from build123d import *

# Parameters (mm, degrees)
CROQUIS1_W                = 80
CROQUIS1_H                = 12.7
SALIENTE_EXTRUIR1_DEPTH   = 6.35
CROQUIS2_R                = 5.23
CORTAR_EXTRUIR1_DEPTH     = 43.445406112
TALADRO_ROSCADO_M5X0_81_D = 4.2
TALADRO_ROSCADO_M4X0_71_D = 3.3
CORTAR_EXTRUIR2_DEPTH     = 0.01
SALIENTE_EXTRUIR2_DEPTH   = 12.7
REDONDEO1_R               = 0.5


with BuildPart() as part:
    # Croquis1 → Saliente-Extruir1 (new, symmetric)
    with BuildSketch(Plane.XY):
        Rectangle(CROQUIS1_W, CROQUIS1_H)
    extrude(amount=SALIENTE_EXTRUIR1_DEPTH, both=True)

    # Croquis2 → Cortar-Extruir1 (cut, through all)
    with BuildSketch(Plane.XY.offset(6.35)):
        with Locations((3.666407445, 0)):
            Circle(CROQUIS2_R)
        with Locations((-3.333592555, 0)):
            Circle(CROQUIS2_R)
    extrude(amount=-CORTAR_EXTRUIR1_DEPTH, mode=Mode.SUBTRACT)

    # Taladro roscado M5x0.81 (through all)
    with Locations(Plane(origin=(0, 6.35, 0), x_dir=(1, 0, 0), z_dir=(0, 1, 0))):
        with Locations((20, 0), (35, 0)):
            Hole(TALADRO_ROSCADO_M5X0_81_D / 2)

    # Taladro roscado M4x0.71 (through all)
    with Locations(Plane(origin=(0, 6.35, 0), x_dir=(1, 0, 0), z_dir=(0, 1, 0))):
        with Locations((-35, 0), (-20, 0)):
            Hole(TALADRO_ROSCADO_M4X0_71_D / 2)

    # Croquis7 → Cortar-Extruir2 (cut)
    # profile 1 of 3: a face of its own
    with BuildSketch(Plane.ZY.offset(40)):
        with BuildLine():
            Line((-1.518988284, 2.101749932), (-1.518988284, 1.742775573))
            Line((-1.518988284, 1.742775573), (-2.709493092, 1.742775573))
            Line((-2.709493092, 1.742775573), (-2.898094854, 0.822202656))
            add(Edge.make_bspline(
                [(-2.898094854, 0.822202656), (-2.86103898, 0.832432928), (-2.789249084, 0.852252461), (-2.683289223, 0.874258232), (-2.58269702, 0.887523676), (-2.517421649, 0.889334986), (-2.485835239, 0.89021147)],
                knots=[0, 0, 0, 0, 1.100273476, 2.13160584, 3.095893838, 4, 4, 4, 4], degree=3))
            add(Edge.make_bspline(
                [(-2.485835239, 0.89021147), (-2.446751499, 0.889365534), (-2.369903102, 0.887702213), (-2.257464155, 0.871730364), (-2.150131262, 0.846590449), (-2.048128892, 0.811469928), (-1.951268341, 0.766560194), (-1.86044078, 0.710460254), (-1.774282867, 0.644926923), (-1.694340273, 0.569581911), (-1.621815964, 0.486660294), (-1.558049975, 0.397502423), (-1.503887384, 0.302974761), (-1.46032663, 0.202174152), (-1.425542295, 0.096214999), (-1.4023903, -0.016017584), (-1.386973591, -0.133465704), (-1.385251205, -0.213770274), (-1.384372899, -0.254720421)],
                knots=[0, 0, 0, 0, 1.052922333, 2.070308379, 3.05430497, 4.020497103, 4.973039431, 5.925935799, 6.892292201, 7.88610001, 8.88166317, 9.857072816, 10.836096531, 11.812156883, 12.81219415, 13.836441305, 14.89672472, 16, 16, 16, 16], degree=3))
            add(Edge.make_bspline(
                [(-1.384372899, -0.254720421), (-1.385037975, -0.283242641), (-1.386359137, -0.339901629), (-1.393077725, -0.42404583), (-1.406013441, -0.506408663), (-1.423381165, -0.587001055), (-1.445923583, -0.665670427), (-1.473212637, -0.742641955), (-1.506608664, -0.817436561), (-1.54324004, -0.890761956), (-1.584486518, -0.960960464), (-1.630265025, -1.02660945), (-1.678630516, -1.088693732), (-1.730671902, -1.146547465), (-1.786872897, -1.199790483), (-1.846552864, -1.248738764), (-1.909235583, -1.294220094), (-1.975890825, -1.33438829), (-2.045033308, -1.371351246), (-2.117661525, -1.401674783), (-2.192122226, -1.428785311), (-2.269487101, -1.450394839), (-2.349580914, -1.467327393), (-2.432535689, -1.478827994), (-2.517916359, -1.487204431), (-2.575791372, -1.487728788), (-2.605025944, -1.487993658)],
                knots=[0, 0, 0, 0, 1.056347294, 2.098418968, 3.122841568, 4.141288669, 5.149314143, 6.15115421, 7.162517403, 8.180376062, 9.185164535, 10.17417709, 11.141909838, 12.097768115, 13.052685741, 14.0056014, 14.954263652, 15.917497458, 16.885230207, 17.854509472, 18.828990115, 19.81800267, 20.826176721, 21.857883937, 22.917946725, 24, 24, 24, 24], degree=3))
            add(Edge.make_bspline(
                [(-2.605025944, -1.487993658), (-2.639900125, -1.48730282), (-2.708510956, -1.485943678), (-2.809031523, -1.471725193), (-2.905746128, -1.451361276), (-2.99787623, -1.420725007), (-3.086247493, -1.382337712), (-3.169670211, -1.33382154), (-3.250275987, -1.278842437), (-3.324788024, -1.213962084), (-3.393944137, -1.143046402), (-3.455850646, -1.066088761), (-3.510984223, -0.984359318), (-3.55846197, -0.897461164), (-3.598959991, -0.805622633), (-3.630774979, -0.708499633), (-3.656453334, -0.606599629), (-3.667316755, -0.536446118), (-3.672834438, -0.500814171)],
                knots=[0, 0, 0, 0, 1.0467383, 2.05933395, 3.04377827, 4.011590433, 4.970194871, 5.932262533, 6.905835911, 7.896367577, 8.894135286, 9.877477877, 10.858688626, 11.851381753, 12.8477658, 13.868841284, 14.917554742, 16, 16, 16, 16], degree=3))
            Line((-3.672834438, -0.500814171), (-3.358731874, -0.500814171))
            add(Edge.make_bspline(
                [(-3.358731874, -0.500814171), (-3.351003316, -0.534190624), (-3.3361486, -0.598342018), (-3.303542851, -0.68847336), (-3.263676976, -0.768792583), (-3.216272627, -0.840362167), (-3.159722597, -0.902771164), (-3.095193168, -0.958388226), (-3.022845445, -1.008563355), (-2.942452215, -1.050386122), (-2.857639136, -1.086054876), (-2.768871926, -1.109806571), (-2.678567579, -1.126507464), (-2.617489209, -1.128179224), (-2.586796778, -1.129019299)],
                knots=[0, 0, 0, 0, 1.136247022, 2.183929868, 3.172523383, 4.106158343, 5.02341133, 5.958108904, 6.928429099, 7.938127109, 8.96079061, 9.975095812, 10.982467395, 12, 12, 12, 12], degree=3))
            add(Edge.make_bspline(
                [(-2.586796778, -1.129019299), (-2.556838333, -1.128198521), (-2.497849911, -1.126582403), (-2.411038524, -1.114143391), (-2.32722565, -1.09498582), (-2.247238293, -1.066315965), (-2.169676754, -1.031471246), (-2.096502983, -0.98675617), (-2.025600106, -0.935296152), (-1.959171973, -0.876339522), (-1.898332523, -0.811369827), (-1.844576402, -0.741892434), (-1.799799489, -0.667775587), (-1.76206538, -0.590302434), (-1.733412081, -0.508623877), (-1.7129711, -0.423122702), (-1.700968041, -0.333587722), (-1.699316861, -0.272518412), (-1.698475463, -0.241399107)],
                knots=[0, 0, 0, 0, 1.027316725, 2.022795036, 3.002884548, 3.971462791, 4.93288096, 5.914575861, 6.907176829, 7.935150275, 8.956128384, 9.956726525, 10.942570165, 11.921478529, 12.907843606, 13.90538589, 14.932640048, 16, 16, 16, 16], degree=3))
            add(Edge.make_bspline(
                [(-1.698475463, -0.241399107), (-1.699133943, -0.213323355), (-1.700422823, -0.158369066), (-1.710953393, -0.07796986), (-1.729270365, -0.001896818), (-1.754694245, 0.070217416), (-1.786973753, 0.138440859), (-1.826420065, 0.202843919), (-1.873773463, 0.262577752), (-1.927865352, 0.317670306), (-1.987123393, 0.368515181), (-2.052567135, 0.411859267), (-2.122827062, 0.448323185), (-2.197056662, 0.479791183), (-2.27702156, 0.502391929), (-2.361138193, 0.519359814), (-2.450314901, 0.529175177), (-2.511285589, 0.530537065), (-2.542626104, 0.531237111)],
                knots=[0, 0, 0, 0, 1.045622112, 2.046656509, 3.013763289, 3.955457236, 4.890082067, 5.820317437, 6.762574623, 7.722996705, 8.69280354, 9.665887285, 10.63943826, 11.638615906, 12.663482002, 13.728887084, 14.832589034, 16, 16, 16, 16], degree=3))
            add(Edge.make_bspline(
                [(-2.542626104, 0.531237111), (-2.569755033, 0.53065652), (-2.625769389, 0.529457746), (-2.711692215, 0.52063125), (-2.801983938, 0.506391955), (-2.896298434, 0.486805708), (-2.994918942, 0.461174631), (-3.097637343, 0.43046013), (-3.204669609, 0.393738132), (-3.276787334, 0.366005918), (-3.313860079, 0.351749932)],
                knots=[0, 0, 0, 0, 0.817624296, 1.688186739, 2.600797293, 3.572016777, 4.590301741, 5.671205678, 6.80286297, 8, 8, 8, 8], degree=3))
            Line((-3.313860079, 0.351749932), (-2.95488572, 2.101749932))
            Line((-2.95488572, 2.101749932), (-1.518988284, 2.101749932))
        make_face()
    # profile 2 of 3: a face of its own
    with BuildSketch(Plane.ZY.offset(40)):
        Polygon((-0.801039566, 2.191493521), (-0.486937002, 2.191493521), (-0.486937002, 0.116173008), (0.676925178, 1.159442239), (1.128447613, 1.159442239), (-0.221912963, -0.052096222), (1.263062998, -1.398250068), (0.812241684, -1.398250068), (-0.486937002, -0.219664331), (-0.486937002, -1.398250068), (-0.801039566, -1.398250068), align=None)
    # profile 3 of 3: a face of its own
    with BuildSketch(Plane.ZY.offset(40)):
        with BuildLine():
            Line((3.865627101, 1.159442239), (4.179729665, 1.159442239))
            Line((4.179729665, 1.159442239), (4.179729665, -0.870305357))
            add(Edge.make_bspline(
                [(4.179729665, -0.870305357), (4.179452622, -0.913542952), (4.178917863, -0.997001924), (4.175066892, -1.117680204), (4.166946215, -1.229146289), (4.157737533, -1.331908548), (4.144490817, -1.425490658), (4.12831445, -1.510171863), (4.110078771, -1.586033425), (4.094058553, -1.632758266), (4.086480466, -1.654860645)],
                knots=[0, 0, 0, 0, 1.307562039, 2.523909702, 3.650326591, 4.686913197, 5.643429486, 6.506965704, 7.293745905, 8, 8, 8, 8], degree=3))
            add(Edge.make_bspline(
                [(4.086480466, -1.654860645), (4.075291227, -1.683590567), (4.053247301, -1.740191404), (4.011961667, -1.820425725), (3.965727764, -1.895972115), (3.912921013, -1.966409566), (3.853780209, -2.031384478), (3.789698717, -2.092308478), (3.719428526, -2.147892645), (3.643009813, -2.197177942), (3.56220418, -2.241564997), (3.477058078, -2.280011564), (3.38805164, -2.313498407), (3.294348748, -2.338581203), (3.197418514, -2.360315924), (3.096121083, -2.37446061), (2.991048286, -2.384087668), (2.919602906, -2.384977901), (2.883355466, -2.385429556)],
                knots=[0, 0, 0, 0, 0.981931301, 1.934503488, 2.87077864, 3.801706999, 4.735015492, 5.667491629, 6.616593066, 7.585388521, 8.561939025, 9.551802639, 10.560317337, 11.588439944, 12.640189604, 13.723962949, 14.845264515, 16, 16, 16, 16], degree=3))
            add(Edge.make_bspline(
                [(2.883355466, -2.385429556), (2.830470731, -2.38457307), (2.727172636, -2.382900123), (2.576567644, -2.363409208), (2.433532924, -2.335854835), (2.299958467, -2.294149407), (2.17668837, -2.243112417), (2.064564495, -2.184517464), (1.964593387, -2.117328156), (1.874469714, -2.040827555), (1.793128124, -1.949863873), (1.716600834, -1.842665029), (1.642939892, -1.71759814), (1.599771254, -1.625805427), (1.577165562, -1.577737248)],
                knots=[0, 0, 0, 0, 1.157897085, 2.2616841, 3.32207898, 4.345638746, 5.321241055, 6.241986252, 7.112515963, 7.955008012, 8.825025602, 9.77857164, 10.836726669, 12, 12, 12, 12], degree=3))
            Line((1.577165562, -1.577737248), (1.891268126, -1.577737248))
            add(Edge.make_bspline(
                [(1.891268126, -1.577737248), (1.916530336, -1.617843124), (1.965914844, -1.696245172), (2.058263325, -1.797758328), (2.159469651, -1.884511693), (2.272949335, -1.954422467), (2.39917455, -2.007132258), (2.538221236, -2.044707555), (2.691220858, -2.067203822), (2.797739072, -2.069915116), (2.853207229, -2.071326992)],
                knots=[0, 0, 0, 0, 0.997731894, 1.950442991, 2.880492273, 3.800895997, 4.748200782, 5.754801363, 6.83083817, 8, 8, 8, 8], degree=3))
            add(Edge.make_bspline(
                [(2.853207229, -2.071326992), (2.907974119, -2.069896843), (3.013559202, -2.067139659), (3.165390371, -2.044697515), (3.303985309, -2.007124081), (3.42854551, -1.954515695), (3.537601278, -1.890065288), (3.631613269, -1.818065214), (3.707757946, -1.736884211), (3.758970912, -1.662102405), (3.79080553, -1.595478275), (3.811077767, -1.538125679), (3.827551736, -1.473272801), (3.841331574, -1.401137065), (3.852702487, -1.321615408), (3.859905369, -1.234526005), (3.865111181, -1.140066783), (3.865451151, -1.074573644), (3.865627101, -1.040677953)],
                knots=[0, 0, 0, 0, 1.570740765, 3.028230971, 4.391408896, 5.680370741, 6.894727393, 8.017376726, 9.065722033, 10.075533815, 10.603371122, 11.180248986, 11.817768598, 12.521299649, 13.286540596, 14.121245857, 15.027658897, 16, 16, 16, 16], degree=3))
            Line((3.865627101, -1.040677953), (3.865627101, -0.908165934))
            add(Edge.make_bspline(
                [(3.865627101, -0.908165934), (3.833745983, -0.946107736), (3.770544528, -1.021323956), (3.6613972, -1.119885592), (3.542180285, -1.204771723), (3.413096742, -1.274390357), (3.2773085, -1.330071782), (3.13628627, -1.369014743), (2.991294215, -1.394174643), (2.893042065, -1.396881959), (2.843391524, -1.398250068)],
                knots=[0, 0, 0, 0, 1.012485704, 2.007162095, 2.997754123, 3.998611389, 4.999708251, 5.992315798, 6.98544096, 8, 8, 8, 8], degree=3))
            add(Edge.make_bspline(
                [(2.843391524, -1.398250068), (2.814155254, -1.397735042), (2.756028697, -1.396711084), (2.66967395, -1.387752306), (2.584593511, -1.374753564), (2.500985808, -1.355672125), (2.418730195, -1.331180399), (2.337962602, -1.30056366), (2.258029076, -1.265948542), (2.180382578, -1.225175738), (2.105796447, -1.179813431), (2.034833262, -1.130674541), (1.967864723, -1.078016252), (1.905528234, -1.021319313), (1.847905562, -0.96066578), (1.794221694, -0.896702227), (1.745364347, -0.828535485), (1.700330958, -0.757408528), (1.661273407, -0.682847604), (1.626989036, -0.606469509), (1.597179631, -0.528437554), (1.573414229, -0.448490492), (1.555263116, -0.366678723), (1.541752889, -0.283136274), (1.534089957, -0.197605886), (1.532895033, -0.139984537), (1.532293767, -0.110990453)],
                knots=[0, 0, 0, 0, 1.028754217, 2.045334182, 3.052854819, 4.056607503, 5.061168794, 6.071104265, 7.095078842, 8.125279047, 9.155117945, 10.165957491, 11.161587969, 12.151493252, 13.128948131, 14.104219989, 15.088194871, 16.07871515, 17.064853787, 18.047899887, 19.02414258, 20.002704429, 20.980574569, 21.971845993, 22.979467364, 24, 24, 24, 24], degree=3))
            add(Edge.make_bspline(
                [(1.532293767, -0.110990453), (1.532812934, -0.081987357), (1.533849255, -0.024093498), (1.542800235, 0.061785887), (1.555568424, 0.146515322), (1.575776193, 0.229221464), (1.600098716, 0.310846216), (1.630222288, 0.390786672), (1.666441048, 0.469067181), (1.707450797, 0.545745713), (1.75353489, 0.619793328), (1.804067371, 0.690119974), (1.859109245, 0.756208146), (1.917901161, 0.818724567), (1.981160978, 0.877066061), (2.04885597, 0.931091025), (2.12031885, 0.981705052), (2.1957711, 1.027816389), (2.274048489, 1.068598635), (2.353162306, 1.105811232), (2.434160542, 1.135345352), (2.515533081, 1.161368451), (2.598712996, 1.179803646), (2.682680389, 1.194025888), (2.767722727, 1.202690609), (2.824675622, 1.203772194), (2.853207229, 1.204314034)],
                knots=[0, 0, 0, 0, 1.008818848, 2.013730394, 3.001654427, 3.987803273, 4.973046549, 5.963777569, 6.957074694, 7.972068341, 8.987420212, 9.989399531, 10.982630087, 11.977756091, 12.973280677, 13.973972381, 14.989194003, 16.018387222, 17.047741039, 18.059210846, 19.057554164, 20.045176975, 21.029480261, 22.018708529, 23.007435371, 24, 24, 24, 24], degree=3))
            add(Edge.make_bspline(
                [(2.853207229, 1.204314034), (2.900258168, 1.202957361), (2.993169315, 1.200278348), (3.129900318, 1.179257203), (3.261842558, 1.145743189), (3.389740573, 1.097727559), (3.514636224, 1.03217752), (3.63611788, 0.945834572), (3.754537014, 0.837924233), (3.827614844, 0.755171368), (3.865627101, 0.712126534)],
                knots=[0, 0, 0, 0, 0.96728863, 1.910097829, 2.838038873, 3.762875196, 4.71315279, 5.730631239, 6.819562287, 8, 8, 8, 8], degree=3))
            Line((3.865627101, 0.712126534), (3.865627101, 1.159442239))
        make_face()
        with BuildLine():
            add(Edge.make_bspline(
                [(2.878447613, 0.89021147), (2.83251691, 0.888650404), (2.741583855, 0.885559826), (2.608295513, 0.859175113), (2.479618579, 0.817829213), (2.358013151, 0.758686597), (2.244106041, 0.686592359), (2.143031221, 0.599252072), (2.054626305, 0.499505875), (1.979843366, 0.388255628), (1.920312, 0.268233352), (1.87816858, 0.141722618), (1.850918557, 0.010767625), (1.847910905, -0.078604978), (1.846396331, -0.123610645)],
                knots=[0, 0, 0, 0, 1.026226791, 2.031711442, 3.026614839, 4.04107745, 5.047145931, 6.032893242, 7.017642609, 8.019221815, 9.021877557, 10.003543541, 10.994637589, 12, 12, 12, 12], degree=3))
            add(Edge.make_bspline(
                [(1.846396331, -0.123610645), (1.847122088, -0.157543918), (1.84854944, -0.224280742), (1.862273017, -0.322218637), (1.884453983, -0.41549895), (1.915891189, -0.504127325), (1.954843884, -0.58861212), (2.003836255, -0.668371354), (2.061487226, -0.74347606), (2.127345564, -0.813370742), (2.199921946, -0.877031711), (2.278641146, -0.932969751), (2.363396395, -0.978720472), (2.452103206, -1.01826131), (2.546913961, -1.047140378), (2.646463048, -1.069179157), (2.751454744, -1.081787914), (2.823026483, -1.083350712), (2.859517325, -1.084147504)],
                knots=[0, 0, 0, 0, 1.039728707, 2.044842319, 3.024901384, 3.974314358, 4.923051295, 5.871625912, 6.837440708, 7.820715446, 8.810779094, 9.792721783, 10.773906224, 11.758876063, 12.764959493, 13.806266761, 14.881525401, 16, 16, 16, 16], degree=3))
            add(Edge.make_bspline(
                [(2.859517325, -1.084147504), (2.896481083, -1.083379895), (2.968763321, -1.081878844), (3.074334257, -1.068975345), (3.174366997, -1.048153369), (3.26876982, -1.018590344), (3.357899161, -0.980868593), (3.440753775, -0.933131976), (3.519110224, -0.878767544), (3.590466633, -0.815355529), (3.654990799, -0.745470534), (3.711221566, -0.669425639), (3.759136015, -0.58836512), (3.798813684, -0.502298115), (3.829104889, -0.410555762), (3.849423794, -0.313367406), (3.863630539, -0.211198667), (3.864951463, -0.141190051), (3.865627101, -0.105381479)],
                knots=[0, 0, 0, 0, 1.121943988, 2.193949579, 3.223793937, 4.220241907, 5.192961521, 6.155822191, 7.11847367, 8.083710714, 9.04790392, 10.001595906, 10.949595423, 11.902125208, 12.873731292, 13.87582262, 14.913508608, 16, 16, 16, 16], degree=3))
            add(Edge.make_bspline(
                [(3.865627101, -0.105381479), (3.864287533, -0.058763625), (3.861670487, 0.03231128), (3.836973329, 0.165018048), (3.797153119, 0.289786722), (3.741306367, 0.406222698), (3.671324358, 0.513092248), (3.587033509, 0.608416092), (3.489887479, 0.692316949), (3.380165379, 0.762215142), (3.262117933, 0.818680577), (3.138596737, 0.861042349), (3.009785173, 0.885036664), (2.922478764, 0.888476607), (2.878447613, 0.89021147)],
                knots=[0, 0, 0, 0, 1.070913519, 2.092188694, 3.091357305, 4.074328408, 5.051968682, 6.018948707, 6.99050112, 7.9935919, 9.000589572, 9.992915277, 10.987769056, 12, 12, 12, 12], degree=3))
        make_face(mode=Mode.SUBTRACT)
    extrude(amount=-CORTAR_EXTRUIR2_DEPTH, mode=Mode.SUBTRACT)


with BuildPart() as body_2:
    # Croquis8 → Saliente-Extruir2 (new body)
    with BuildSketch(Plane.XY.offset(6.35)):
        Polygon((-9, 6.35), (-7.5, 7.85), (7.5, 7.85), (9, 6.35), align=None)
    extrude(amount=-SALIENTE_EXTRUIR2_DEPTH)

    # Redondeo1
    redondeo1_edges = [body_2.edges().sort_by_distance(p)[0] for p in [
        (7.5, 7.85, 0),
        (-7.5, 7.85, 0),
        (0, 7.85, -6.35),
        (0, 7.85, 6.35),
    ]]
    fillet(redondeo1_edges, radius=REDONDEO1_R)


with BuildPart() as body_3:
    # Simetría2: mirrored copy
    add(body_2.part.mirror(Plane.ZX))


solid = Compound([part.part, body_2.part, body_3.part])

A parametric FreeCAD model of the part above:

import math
import FreeCAD as App
import Part
import Sketcher

V = App.Vector


def edges_at(feature, points):
    """Names of the edges that pass closest to the given points."""
    edges = feature.Shape.Edges
    near = lambda p: min(range(len(edges)), key=lambda i: edges[i].distToShape(Part.Vertex(*p))[0])
    return sorted({f"Edge{near(p) + 1}" for p in points})

doc = App.newDocument("Part")
body = doc.addObject("PartDesign::Body", "Body")

# Sketch on XY plane
sketch1 = doc.addObject("Sketcher::SketchObject", "Sketch")
body.addObject(sketch1)
sketch1.AttachmentSupport = (doc.XY_Plane, [""])
sketch1.MapMode = "FlatFace"
sketch1.addGeometry([
    Part.LineSegment(V(-40, 6, 0), V(-40, -6, 0)),
    Part.LineSegment(V(-40, -6, 0), V(40, -6, 0)),
    Part.LineSegment(V(40, -6, 0), V(40, 6, 0)),
    Part.LineSegment(V(40, 6, 0), V(-40, 6, 0)),
], False)
sketch1.addConstraint([
    Sketcher.Constraint("Coincident", 0, 2, 1, 1),
    Sketcher.Constraint("Coincident", 1, 2, 2, 1),
    Sketcher.Constraint("Coincident", 2, 2, 3, 1),
    Sketcher.Constraint("Coincident", 3, 2, 0, 1),
    Sketcher.Constraint("Vertical", 0),
    Sketcher.Constraint("Horizontal", 1),
    Sketcher.Constraint("Vertical", 2),
    Sketcher.Constraint("Horizontal", 3),
    Sketcher.Constraint("Symmetric", 0, 2, 2, 2, -1, 1),
    Sketcher.Constraint("DistanceX", 1, 1, 1, 2, 80.0),
    Sketcher.Constraint("DistanceY", 0, 2, 0, 1, 12.7),
])
pad1 = doc.addObject("PartDesign::Pad", "Pad")
body.addObject(pad1)
pad1.Profile = sketch1
pad1.Length = 12.7
pad1.Midplane = True

# Sketch on XY plane
sketch2 = doc.addObject("Sketcher::SketchObject", "Sketch001")
body.addObject(sketch2)
sketch2.AttachmentSupport = (doc.XY_Plane, [""])
sketch2.MapMode = "FlatFace"
sketch2.AttachmentOffset = App.Placement(V(0, 0, 6.35), App.Rotation())
sketch2.addGeometry([
    Part.ArcOfCircle(Part.Circle(V(-3, 0, 0), V(0, 0, 1), 5), math.radians(48), math.radians(312)),
    Part.ArcOfCircle(Part.Circle(V(4, 0, 0), V(0, 0, 1), 5), math.radians(-132), math.radians(132)),
], False)
sketch2.addConstraint([
    Sketcher.Constraint("Coincident", 0, 1, 1, 2),
    Sketcher.Constraint("Coincident", 1, 1, 0, 2),
    Sketcher.Constraint("Equal", 0, 1),
    Sketcher.Constraint("Symmetric", 0, 1, 1, 1, -1),
    Sketcher.Constraint("Radius", 0, 5.23),
    Sketcher.Constraint("DistanceX", 0, 3, 1, 3, 7.0),
    Sketcher.Constraint("DistanceX", 0, 3, -1, 1, 3.333593),
])
pocket1 = doc.addObject("PartDesign::Pocket", "Pocket")
body.addObject(pocket1)
pocket1.Profile = sketch2
pocket1.Type = "ThroughAll"

# Sketch on XZ plane
sketch3 = doc.addObject("Sketcher::SketchObject", "Sketch002")
body.addObject(sketch3)
sketch3.AttachmentSupport = (doc.XZ_Plane, [""])
sketch3.MapMode = "FlatFace"
sketch3.AttachmentOffset = App.Placement(V(0, 0, -6.35), App.Rotation())
sketch3.addGeometry([
    Part.Circle(V(20, 0, 0), V(0, 0, 1), 2.1),
    Part.Circle(V(35, 0, 0), V(0, 0, 1), 2.1),
], False)
sketch3.addConstraint([
    Sketcher.Constraint("Equal", 0, 1),
    Sketcher.Constraint("PointOnObject", 0, 3, -1),
    Sketcher.Constraint("PointOnObject", 1, 3, -1),
    Sketcher.Constraint("Diameter", 0, 4.2),
    Sketcher.Constraint("DistanceX", -1, 1, 0, 3, 20.0),
    Sketcher.Constraint("DistanceX", -1, 1, 1, 3, 35.0),
])
doc.recompute()
hole = doc.addObject("PartDesign::Hole", "Hole")
body.addObject(hole)
hole.Profile = sketch3
hole.ThreadType = "None"
hole.Diameter = 4.2
hole.DepthType = "ThroughAll"
hole.Reversed = True

# Sketch on XZ plane
sketch4 = doc.addObject("Sketcher::SketchObject", "Sketch003")
body.addObject(sketch4)
sketch4.AttachmentSupport = (doc.XZ_Plane, [""])
sketch4.MapMode = "FlatFace"
sketch4.AttachmentOffset = App.Placement(V(0, 0, -6.35), App.Rotation())
sketch4.addGeometry([
    Part.Circle(V(-35, 0, 0), V(0, 0, 1), 1.6),
    Part.Circle(V(-20, 0, 0), V(0, 0, 1), 1.6),
], False)
sketch4.addConstraint([
    Sketcher.Constraint("Equal", 0, 1),
    Sketcher.Constraint("PointOnObject", 0, 3, -1),
    Sketcher.Constraint("PointOnObject", 1, 3, -1),
    Sketcher.Constraint("Diameter", 0, 3.3),
    Sketcher.Constraint("DistanceX", 0, 3, -1, 1, 35.0),
    Sketcher.Constraint("DistanceX", 1, 3, -1, 1, 20.0),
])
doc.recompute()
hole2 = doc.addObject("PartDesign::Hole", "Hole001")
body.addObject(hole2)
hole2.Profile = sketch4
hole2.ThreadType = "None"
hole2.Diameter = 3.3
hole2.DepthType = "ThroughAll"
hole2.Reversed = True

# Sketch on YZ plane
sketch5 = doc.addObject("Sketcher::SketchObject", "Sketch004")
body.addObject(sketch5)
sketch5.AttachmentSupport = (doc.YZ_Plane, [""])
sketch5.MapMode = "FlatFace"
sketch5.AttachmentOffset = App.Placement(V(0, 0, -40), App.Rotation())
sketch5.addGeometry([
    Part.LineSegment(V(1.742776, -1.518988, 0), V(2.10175, -1.518988, 0)),  # 0
    Part.LineSegment(V(2.10175, -1.518988, 0), V(2.10175, -2.954886, 0)),  # 1
    Part.LineSegment(V(2.10175, -2.954886, 0), V(0.35175, -3.31386, 0)),  # 2
    Part.BSplineCurve([V(0.531237, -2.542626, 0), V(0.530657, -2.569755, 0), V(0.529458, -2.625769, 0), V(0.520631, -2.711692, 0), V(0.506392, -2.801984, 0), V(0.486806, -2.896298, 0), V(0.461175, -2.994919, 0), V(0.43046, -3.097637, 0), V(0.393738, -3.20467, 0), V(0.366006, -3.276787, 0), V(0.35175, -3.31386, 0)], [4, 1, 1, 1, 1, 1, 1, 1, 4], [0, 0.817624296, 1.688186739, 2.600797293, 3.572016777, 4.590301741, 5.671205678, 6.80286297, 8], False, 3, [1, 1, 1, 1, 1, 1, 1, 1, 1, 1, 1], False),  # 3
    Part.BSplineCurve([V(-0.241399, -1.698475, 0), V(-0.213323, -1.699134, 0), V(-0.158369, -1.700423, 0), V(-0.07797, -1.710953, 0), V(-0.001897, -1.72927, 0), V(0.070217, -1.754694, 0), V(0.138441, -1.786974, 0), V(0.202844, -1.82642, 0), V(0.262578, -1.873773, 0), V(0.31767, -1.927865, 0), V(0.368515, -1.987123, 0), V(0.411859, -2.052567, 0), V(0.448323, -2.122827, 0), V(0.479791, -2.197057, 0), V(0.502392, -2.277022, 0), V(0.51936, -2.361138, 0), V(0.529175, -2.450315, 0), V(0.530537, -2.511286, 0), V(0.531237, -2.542626, 0)], [4, 1, 1, 1, 1, 1, 1, 1, 1, 1, 1, 1, 1, 1, 1, 1, 4], [0, 1.045622112, 2.046656509, 3.013763289, 3.955457236, 4.890082067, 5.820317437, 6.762574623, 7.722996705, 8.69280354, 9.665887285, 10.63943826, 11.638615906, 12.663482002, 13.728887084, 14.832589034, 16], False, 3, [1, 1, 1, 1, 1, 1, 1, 1, 1, 1, 1, 1, 1, 1, 1, 1, 1, 1, 1], False),  # 4
    Part.BSplineCurve([V(-1.129019, -2.586797, 0), V(-1.128199, -2.556838, 0), V(-1.126582, -2.49785, 0), V(-1.114143, -2.411039, 0), V(-1.094986, -2.327226, 0), V(-1.066316, -2.247238, 0), V(-1.031471, -2.169677, 0), V(-0.986756, -2.096503, 0), V(-0.935296, -2.0256, 0), V(-0.87634, -1.959172, 0), V(-0.81137, -1.898333, 0), V(-0.741892, -1.844576, 0), V(-0.667776, -1.799799, 0), V(-0.590302, -1.762065, 0), V(-0.508624, -1.733412, 0), V(-0.423123, -1.712971, 0), V(-0.333588, -1.700968, 0), V(-0.272518, -1.699317, 0), V(-0.241399, -1.698475, 0)], [4, 1, 1, 1, 1, 1, 1, 1, 1, 1, 1, 1, 1, 1, 1, 1, 4], [0, 1.027316725, 2.022795036, 3.002884548, 3.971462791, 4.93288096, 5.914575861, 6.907176829, 7.935150275, 8.956128384, 9.956726525, 10.942570165, 11.921478529, 12.907843606, 13.90538589, 14.932640048, 16], False, 3, [1, 1, 1, 1, 1, 1, 1, 1, 1, 1, 1, 1, 1, 1, 1, 1, 1, 1, 1], False),  # 5
    Part.BSplineCurve([V(-0.500814, -3.358732, 0), V(-0.534191, -3.351003, 0), V(-0.598342, -3.336149, 0), V(-0.688473, -3.303543, 0), V(-0.768793, -3.263677, 0), V(-0.840362, -3.216273, 0), V(-0.902771, -3.159723, 0), V(-0.958388, -3.095193, 0), V(-1.008563, -3.022845, 0), V(-1.050386, -2.942452, 0), V(-1.086055, -2.857639, 0), V(-1.109807, -2.768872, 0), V(-1.126507, -2.678568, 0), V(-1.128179, -2.617489, 0), V(-1.129019, -2.586797, 0)], [4, 1, 1, 1, 1, 1, 1, 1, 1, 1, 1, 1, 4], [0, 1.136247022, 2.183929868, 3.172523383, 4.106158343, 5.02341133, 5.958108904, 6.928429099, 7.938127109, 8.96079061, 9.975095812, 10.982467395, 12], False, 3, [1, 1, 1, 1, 1, 1, 1, 1, 1, 1, 1, 1, 1, 1, 1], False),  # 6
    Part.LineSegment(V(-0.500814, -3.358732, 0), V(-0.500814, -3.672834, 0)),  # 7
    Part.BSplineCurve([V(-1.487994, -2.605026, 0), V(-1.487303, -2.6399, 0), V(-1.485944, -2.708511, 0), V(-1.471725, -2.809032, 0), V(-1.451361, -2.905746, 0), V(-1.420725, -2.997876, 0), V(-1.382338, -3.086247, 0), V(-1.333822, -3.16967, 0), V(-1.278842, -3.250276, 0), V(-1.213962, -3.324788, 0), V(-1.143046, -3.393944, 0), V(-1.066089, -3.455851, 0), V(-0.984359, -3.510984, 0), V(-0.897461, -3.558462, 0), V(-0.805623, -3.59896, 0), V(-0.7085, -3.630775, 0), V(-0.6066, -3.656453, 0), V(-0.536446, -3.667317, 0), V(-0.500814, -3.672834, 0)], [4, 1, 1, 1, 1, 1, 1, 1, 1, 1, 1, 1, 1, 1, 1, 1, 4], [0, 1.0467383, 2.05933395, 3.04377827, 4.011590433, 4.970194871, 5.932262533, 6.905835911, 7.896367577, 8.894135286, 9.877477877, 10.858688626, 11.851381753, 12.8477658, 13.868841284, 14.917554742, 16], False, 3, [1, 1, 1, 1, 1, 1, 1, 1, 1, 1, 1, 1, 1, 1, 1, 1, 1, 1, 1], False),  # 8
    Part.BSplineCurve([V(-0.25472, -1.384373, 0), V(-0.283243, -1.385038, 0), V(-0.339902, -1.386359, 0), V(-0.424046, -1.393078, 0), V(-0.506409, -1.406013, 0), V(-0.587001, -1.423381, 0), V(-0.66567, -1.445924, 0), V(-0.742642, -1.473213, 0), V(-0.817437, -1.506609, 0), V(-0.890762, -1.54324, 0), V(-0.96096, -1.584487, 0), V(-1.026609, -1.630265, 0), V(-1.088694, -1.678631, 0), V(-1.146547, -1.730672, 0), V(-1.19979, -1.786873, 0), V(-1.248739, -1.846553, 0), V(-1.29422, -1.909236, 0), V(-1.334388, -1.975891, 0), V(-1.371351, -2.045033, 0), V(-1.401675, -2.117662, 0), V(-1.428785, -2.192122, 0), V(-1.450395, -2.269487, 0), V(-1.467327, -2.349581, 0), V(-1.478828, -2.432536, 0), V(-1.487204, -2.517916, 0), V(-1.487729, -2.575791, 0), V(-1.487994, -2.605026, 0)], [4, 1, 1, 1, 1, 1, 1, 1, 1, 1, 1, 1, 1, 1, 1, 1, 1, 1, 1, 1, 1, 1, 1, 1, 4], [0, 1.056347294, 2.098418968, 3.122841568, 4.141288669, 5.149314143, 6.15115421, 7.162517403, 8.180376062, 9.185164535, 10.17417709, 11.141909838, 12.097768115, 13.052685741, 14.0056014, 14.954263652, 15.917497458, 16.885230207, 17.854509472, 18.828990115, 19.81800267, 20.826176721, 21.857883937, 22.917946725, 24], False, 3, [1, 1, 1, 1, 1, 1, 1, 1, 1, 1, 1, 1, 1, 1, 1, 1, 1, 1, 1, 1, 1, 1, 1, 1, 1, 1, 1], False),  # 9
    Part.BSplineCurve([V(0.890211, -2.485835, 0), V(0.889366, -2.446751, 0), V(0.887702, -2.369903, 0), V(0.87173, -2.257464, 0), V(0.84659, -2.150131, 0), V(0.81147, -2.048129, 0), V(0.76656, -1.951268, 0), V(0.71046, -1.860441, 0), V(0.644927, -1.774283, 0), V(0.569582, -1.69434, 0), V(0.48666, -1.621816, 0), V(0.397502, -1.55805, 0), V(0.302975, -1.503887, 0), V(0.202174, -1.460327, 0), V(0.096215, -1.425542, 0), V(-0.016018, -1.40239, 0), V(-0.133466, -1.386974, 0), V(-0.21377, -1.385251, 0), V(-0.25472, -1.384373, 0)], [4, 1, 1, 1, 1, 1, 1, 1, 1, 1, 1, 1, 1, 1, 1, 1, 4], [0, 1.052922333, 2.070308379, 3.05430497, 4.020497103, 4.973039431, 5.925935799, 6.892292201, 7.88610001, 8.88166317, 9.857072816, 10.836096531, 11.812156883, 12.81219415, 13.836441305, 14.89672472, 16], False, 3, [1, 1, 1, 1, 1, 1, 1, 1, 1, 1, 1, 1, 1, 1, 1, 1, 1, 1, 1], False),  # 10
    Part.BSplineCurve([V(0.822203, -2.898095, 0), V(0.832433, -2.861039, 0), V(0.852252, -2.789249, 0), V(0.874258, -2.683289, 0), V(0.887524, -2.582697, 0), V(0.889335, -2.517422, 0), V(0.890211, -2.485835, 0)], [4, 1, 1, 1, 4], [0, 1.100273476, 2.13160584, 3.095893838, 4], False, 3, [1, 1, 1, 1, 1, 1, 1], False),  # 11
    Part.LineSegment(V(0.822203, -2.898095, 0), V(1.742776, -2.709493, 0)),  # 12
    Part.LineSegment(V(1.742776, -2.709493, 0), V(1.742776, -1.518988, 0)),  # 13
    Part.LineSegment(V(2.191494, -0.486937, 0), V(2.191494, -0.80104, 0)),  # 14
    Part.LineSegment(V(2.191494, -0.80104, 0), V(-1.39825, -0.80104, 0)),  # 15
    Part.LineSegment(V(-1.39825, -0.80104, 0), V(-1.39825, -0.486937, 0)),  # 16
    Part.LineSegment(V(-1.39825, -0.486937, 0), V(-0.219664, -0.486937, 0)),  # 17
    Part.LineSegment(V(-0.219664, -0.486937, 0), V(-1.39825, 0.812242, 0)),  # 18
    Part.LineSegment(V(-1.39825, 0.812242, 0), V(-1.39825, 1.263063, 0)),  # 19
    Part.LineSegment(V(-1.39825, 1.263063, 0), V(-0.052096, -0.221913, 0)),  # 20
    Part.LineSegment(V(-0.052096, -0.221913, 0), V(1.159442, 1.128448, 0)),  # 21
    Part.LineSegment(V(1.159442, 1.128448, 0), V(1.159442, 0.676925, 0)),  # 22
    Part.LineSegment(V(1.159442, 0.676925, 0), V(0.116173, -0.486937, 0)),  # 23
    Part.LineSegment(V(0.116173, -0.486937, 0), V(2.191494, -0.486937, 0)),  # 24
    Part.LineSegment(V(1.159442, 4.17973, 0), V(1.159442, 3.865627, 0)),  # 25
    Part.LineSegment(V(1.159442, 3.865627, 0), V(0.712127, 3.865627, 0)),  # 26
    Part.BSplineCurve([V(1.204314, 2.853207, 0), V(1.202957, 2.900258, 0), V(1.200278, 2.993169, 0), V(1.179257, 3.1299, 0), V(1.145743, 3.261843, 0), V(1.097728, 3.389741, 0), V(1.032178, 3.514636, 0), V(0.945835, 3.636118, 0), V(0.837924, 3.754537, 0), V(0.755171, 3.827615, 0), V(0.712127, 3.865627, 0)], [4, 1, 1, 1, 1, 1, 1, 1, 4], [0, 0.96728863, 1.910097829, 2.838038873, 3.762875196, 4.71315279, 5.730631239, 6.819562287, 8], False, 3, [1, 1, 1, 1, 1, 1, 1, 1, 1, 1, 1], False),  # 27
    Part.BSplineCurve([V(-0.11099, 1.532294, 0), V(-0.081987, 1.532813, 0), V(-0.024093, 1.533849, 0), V(0.061786, 1.5428, 0), V(0.146515, 1.555568, 0), V(0.229221, 1.575776, 0), V(0.310846, 1.600099, 0), V(0.390787, 1.630222, 0), V(0.469067, 1.666441, 0), V(0.545746, 1.707451, 0), V(0.619793, 1.753535, 0), V(0.69012, 1.804067, 0), V(0.756208, 1.859109, 0), V(0.818725, 1.917901, 0), V(0.877066, 1.981161, 0), V(0.931091, 2.048856, 0), V(0.981705, 2.120319, 0), V(1.027816, 2.195771, 0), V(1.068599, 2.274048, 0), V(1.105811, 2.353162, 0), V(1.135345, 2.434161, 0), V(1.161368, 2.515533, 0), V(1.179804, 2.598713, 0), V(1.194026, 2.68268, 0), V(1.202691, 2.767723, 0), V(1.203772, 2.824676, 0), V(1.204314, 2.853207, 0)], [4, 1, 1, 1, 1, 1, 1, 1, 1, 1, 1, 1, 1, 1, 1, 1, 1, 1, 1, 1, 1, 1, 1, 1, 4], [0, 1.008818848, 2.013730394, 3.001654427, 3.987803273, 4.973046549, 5.963777569, 6.957074694, 7.972068341, 8.987420212, 9.989399531, 10.982630087, 11.977756091, 12.973280677, 13.973972381, 14.989194003, 16.018387222, 17.047741039, 18.059210846, 19.057554164, 20.045176975, 21.029480261, 22.018708529, 23.007435371, 24], False, 3, [1, 1, 1, 1, 1, 1, 1, 1, 1, 1, 1, 1, 1, 1, 1, 1, 1, 1, 1, 1, 1, 1, 1, 1, 1, 1, 1], False),  # 28
    Part.BSplineCurve([V(-1.39825, 2.843392, 0), V(-1.397735, 2.814155, 0), V(-1.396711, 2.756029, 0), V(-1.387752, 2.669674, 0), V(-1.374754, 2.584594, 0), V(-1.355672, 2.500986, 0), V(-1.33118, 2.41873, 0), V(-1.300564, 2.337963, 0), V(-1.265949, 2.258029, 0), V(-1.225176, 2.180383, 0), V(-1.179813, 2.105796, 0), V(-1.130675, 2.034833, 0), V(-1.078016, 1.967865, 0), V(-1.021319, 1.905528, 0), V(-0.960666, 1.847906, 0), V(-0.896702, 1.794222, 0), V(-0.828535, 1.745364, 0), V(-0.757409, 1.700331, 0), V(-0.682848, 1.661273, 0), V(-0.60647, 1.626989, 0), V(-0.528438, 1.59718, 0), V(-0.44849, 1.573414, 0), V(-0.366679, 1.555263, 0), V(-0.283136, 1.541753, 0), V(-0.197606, 1.53409, 0), V(-0.139985, 1.532895, 0), V(-0.11099, 1.532294, 0)], [4, 1, 1, 1, 1, 1, 1, 1, 1, 1, 1, 1, 1, 1, 1, 1, 1, 1, 1, 1, 1, 1, 1, 1, 4], [0, 1.028754217, 2.045334182, 3.052854819, 4.056607503, 5.061168794, 6.071104265, 7.095078842, 8.125279047, 9.155117945, 10.165957491, 11.161587969, 12.151493252, 13.128948131, 14.104219989, 15.088194871, 16.07871515, 17.064853787, 18.047899887, 19.02414258, 20.002704429, 20.980574569, 21.971845993, 22.979467364, 24], False, 3, [1, 1, 1, 1, 1, 1, 1, 1, 1, 1, 1, 1, 1, 1, 1, 1, 1, 1, 1, 1, 1, 1, 1, 1, 1, 1, 1], False),  # 29
    Part.BSplineCurve([V(-0.908166, 3.865627, 0), V(-0.946108, 3.833746, 0), V(-1.021324, 3.770545, 0), V(-1.119886, 3.661397, 0), V(-1.204772, 3.54218, 0), V(-1.27439, 3.413097, 0), V(-1.330072, 3.277309, 0), V(-1.369015, 3.136286, 0), V(-1.394175, 2.991294, 0), V(-1.396882, 2.893042, 0), V(-1.39825, 2.843392, 0)], [4, 1, 1, 1, 1, 1, 1, 1, 4], [0, 1.012485704, 2.007162095, 2.997754123, 3.998611389, 4.999708251, 5.992315798, 6.98544096, 8], False, 3, [1, 1, 1, 1, 1, 1, 1, 1, 1, 1, 1], False),  # 30
    Part.LineSegment(V(-0.908166, 3.865627, 0), V(-1.040678, 3.865627, 0)),  # 31
    Part.BSplineCurve([V(-2.071327, 2.853207, 0), V(-2.069897, 2.907974, 0), V(-2.06714, 3.013559, 0), V(-2.044698, 3.16539, 0), V(-2.007124, 3.303985, 0), V(-1.954516, 3.428546, 0), V(-1.890065, 3.537601, 0), V(-1.818065, 3.631613, 0), V(-1.736884, 3.707758, 0), V(-1.662102, 3.758971, 0), V(-1.595478, 3.790806, 0), V(-1.538126, 3.811078, 0), V(-1.473273, 3.827552, 0), V(-1.401137, 3.841332, 0), V(-1.321615, 3.852702, 0), V(-1.234526, 3.859905, 0), V(-1.140067, 3.865111, 0), V(-1.074574, 3.865451, 0), V(-1.040678, 3.865627, 0)], [4, 1, 1, 1, 1, 1, 1, 1, 1, 1, 1, 1, 1, 1, 1, 1, 4], [0, 1.570740765, 3.028230971, 4.391408896, 5.680370741, 6.894727393, 8.017376726, 9.065722033, 10.075533815, 10.603371122, 11.180248986, 11.817768598, 12.521299649, 13.286540596, 14.121245857, 15.027658897, 16], False, 3, [1, 1, 1, 1, 1, 1, 1, 1, 1, 1, 1, 1, 1, 1, 1, 1, 1, 1, 1], False),  # 32
    Part.BSplineCurve([V(-1.577737, 1.891268, 0), V(-1.617843, 1.91653, 0), V(-1.696245, 1.965915, 0), V(-1.797758, 2.058263, 0), V(-1.884512, 2.15947, 0), V(-1.954422, 2.272949, 0), V(-2.007132, 2.399175, 0), V(-2.044708, 2.538221, 0), V(-2.067204, 2.691221, 0), V(-2.069915, 2.797739, 0), V(-2.071327, 2.853207, 0)], [4, 1, 1, 1, 1, 1, 1, 1, 4], [0, 0.997731894, 1.950442991, 2.880492273, 3.800895997, 4.748200782, 5.754801363, 6.83083817, 8], False, 3, [1, 1, 1, 1, 1, 1, 1, 1, 1, 1, 1], False),  # 33
    Part.LineSegment(V(-1.577737, 1.891268, 0), V(-1.577737, 1.577166, 0)),  # 34
    Part.BSplineCurve([V(-2.38543, 2.883355, 0), V(-2.384573, 2.830471, 0), V(-2.3829, 2.727173, 0), V(-2.363409, 2.576568, 0), V(-2.335855, 2.433533, 0), V(-2.294149, 2.299958, 0), V(-2.243112, 2.176688, 0), V(-2.184517, 2.064564, 0), V(-2.117328, 1.964593, 0), V(-2.040828, 1.87447, 0), V(-1.949864, 1.793128, 0), V(-1.842665, 1.716601, 0), V(-1.717598, 1.64294, 0), V(-1.625805, 1.599771, 0), V(-1.577737, 1.577166, 0)], [4, 1, 1, 1, 1, 1, 1, 1, 1, 1, 1, 1, 4], [0, 1.157897085, 2.2616841, 3.32207898, 4.345638746, 5.321241055, 6.241986252, 7.112515963, 7.955008012, 8.825025602, 9.77857164, 10.836726669, 12], False, 3, [1, 1, 1, 1, 1, 1, 1, 1, 1, 1, 1, 1, 1, 1, 1], False),  # 35
    Part.BSplineCurve([V(-1.654861, 4.08648, 0), V(-1.683591, 4.075291, 0), V(-1.740191, 4.053247, 0), V(-1.820426, 4.011962, 0), V(-1.895972, 3.965728, 0), V(-1.96641, 3.912921, 0), V(-2.031384, 3.85378, 0), V(-2.092308, 3.789699, 0), V(-2.147893, 3.719429, 0), V(-2.197178, 3.64301, 0), V(-2.241565, 3.562204, 0), V(-2.280012, 3.477058, 0), V(-2.313498, 3.388052, 0), V(-2.338581, 3.294349, 0), V(-2.360316, 3.197419, 0), V(-2.374461, 3.096121, 0), V(-2.384088, 2.991048, 0), V(-2.384978, 2.919603, 0), V(-2.38543, 2.883355, 0)], [4, 1, 1, 1, 1, 1, 1, 1, 1, 1, 1, 1, 1, 1, 1, 1, 4], [0, 0.981931301, 1.934503488, 2.87077864, 3.801706999, 4.735015492, 5.667491629, 6.616593066, 7.585388521, 8.561939025, 9.551802639, 10.560317337, 11.588439944, 12.640189604, 13.723962949, 14.845264515, 16], False, 3, [1, 1, 1, 1, 1, 1, 1, 1, 1, 1, 1, 1, 1, 1, 1, 1, 1, 1, 1], False),  # 36
    Part.BSplineCurve([V(-0.870305, 4.17973, 0), V(-0.913543, 4.179453, 0), V(-0.997002, 4.178918, 0), V(-1.11768, 4.175067, 0), V(-1.229146, 4.166946, 0), V(-1.331909, 4.157738, 0), V(-1.425491, 4.144491, 0), V(-1.510172, 4.128314, 0), V(-1.586033, 4.110079, 0), V(-1.632758, 4.094059, 0), V(-1.654861, 4.08648, 0)], [4, 1, 1, 1, 1, 1, 1, 1, 4], [0, 1.307562039, 2.523909702, 3.650326591, 4.686913197, 5.643429486, 6.506965704, 7.293745905, 8], False, 3, [1, 1, 1, 1, 1, 1, 1, 1, 1, 1, 1], False),  # 37
    Part.LineSegment(V(-0.870305, 4.17973, 0), V(1.159442, 4.17973, 0)),  # 38
    Part.BSplineCurve([V(-0.105381, 3.865627, 0), V(-0.058764, 3.864288, 0), V(0.032311, 3.86167, 0), V(0.165018, 3.836973, 0), V(0.289787, 3.797153, 0), V(0.406223, 3.741306, 0), V(0.513092, 3.671324, 0), V(0.608416, 3.587034, 0), V(0.692317, 3.489887, 0), V(0.762215, 3.380165, 0), V(0.818681, 3.262118, 0), V(0.861042, 3.138597, 0), V(0.885037, 3.009785, 0), V(0.888477, 2.922479, 0), V(0.890211, 2.878448, 0)], [4, 1, 1, 1, 1, 1, 1, 1, 1, 1, 1, 1, 4], [0, 1.070913519, 2.092188694, 3.091357305, 4.074328408, 5.051968682, 6.018948707, 6.99050112, 7.9935919, 9.000589572, 9.992915277, 10.987769056, 12], False, 3, [1, 1, 1, 1, 1, 1, 1, 1, 1, 1, 1, 1, 1, 1, 1], False),  # 39
    Part.BSplineCurve([V(-1.084148, 2.859517, 0), V(-1.08338, 2.896481, 0), V(-1.081879, 2.968763, 0), V(-1.068975, 3.074334, 0), V(-1.048153, 3.174367, 0), V(-1.01859, 3.26877, 0), V(-0.980869, 3.357899, 0), V(-0.933132, 3.440754, 0), V(-0.878768, 3.51911, 0), V(-0.815356, 3.590467, 0), V(-0.745471, 3.654991, 0), V(-0.669426, 3.711222, 0), V(-0.588365, 3.759136, 0), V(-0.502298, 3.798814, 0), V(-0.410556, 3.829105, 0), V(-0.313367, 3.849424, 0), V(-0.211199, 3.863631, 0), V(-0.14119, 3.864951, 0), V(-0.105381, 3.865627, 0)], [4, 1, 1, 1, 1, 1, 1, 1, 1, 1, 1, 1, 1, 1, 1, 1, 4], [0, 1.121943988, 2.193949579, 3.223793937, 4.220241907, 5.192961521, 6.155822191, 7.11847367, 8.083710714, 9.04790392, 10.001595906, 10.949595423, 11.902125208, 12.873731292, 13.87582262, 14.913508608, 16], False, 3, [1, 1, 1, 1, 1, 1, 1, 1, 1, 1, 1, 1, 1, 1, 1, 1, 1, 1, 1], False),  # 40
    Part.BSplineCurve([V(-0.123611, 1.846396, 0), V(-0.157544, 1.847122, 0), V(-0.224281, 1.848549, 0), V(-0.322219, 1.862273, 0), V(-0.415499, 1.884454, 0), V(-0.504127, 1.915891, 0), V(-0.588612, 1.954844, 0), V(-0.668371, 2.003836, 0), V(-0.743476, 2.061487, 0), V(-0.813371, 2.127346, 0), V(-0.877032, 2.199922, 0), V(-0.93297, 2.278641, 0), V(-0.97872, 2.363396, 0), V(-1.018261, 2.452103, 0), V(-1.04714, 2.546914, 0), V(-1.069179, 2.646463, 0), V(-1.081788, 2.751455, 0), V(-1.083351, 2.823026, 0), V(-1.084148, 2.859517, 0)], [4, 1, 1, 1, 1, 1, 1, 1, 1, 1, 1, 1, 1, 1, 1, 1, 4], [0, 1.039728707, 2.044842319, 3.024901384, 3.974314358, 4.923051295, 5.871625912, 6.837440708, 7.820715446, 8.810779094, 9.792721783, 10.773906224, 11.758876063, 12.764959493, 13.806266761, 14.881525401, 16], False, 3, [1, 1, 1, 1, 1, 1, 1, 1, 1, 1, 1, 1, 1, 1, 1, 1, 1, 1, 1], False),  # 41
    Part.BSplineCurve([V(0.890211, 2.878448, 0), V(0.88865, 2.832517, 0), V(0.88556, 2.741584, 0), V(0.859175, 2.608296, 0), V(0.817829, 2.479619, 0), V(0.758687, 2.358013, 0), V(0.686592, 2.244106, 0), V(0.599252, 2.143031, 0), V(0.499506, 2.054626, 0), V(0.388256, 1.979843, 0), V(0.268233, 1.920312, 0), V(0.141723, 1.878169, 0), V(0.010768, 1.850919, 0), V(-0.078605, 1.847911, 0), V(-0.123611, 1.846396, 0)], [4, 1, 1, 1, 1, 1, 1, 1, 1, 1, 1, 1, 4], [0, 1.026226791, 2.031711442, 3.026614839, 4.04107745, 5.047145931, 6.032893242, 7.017642609, 8.019221815, 9.021877557, 10.003543541, 10.994637589, 12], False, 3, [1, 1, 1, 1, 1, 1, 1, 1, 1, 1, 1, 1, 1, 1, 1], False),  # 42
], False)
sketch5.addConstraint([
    Sketcher.Constraint("Block", 3),
    Sketcher.Constraint("Block", 4),
    Sketcher.Constraint("Block", 5),
    Sketcher.Constraint("Block", 6),
    Sketcher.Constraint("Block", 8),
    Sketcher.Constraint("Block", 9),
    Sketcher.Constraint("Block", 10),
    Sketcher.Constraint("Block", 11),
    Sketcher.Constraint("Block", 27),
    Sketcher.Constraint("Block", 28),
    Sketcher.Constraint("Block", 29),
    Sketcher.Constraint("Block", 30),
    Sketcher.Constraint("Block", 32),
    Sketcher.Constraint("Block", 33),
    Sketcher.Constraint("Block", 35),
    Sketcher.Constraint("Block", 36),
    Sketcher.Constraint("Block", 37),
    Sketcher.Constraint("Block", 39),
    Sketcher.Constraint("Block", 40),
    Sketcher.Constraint("Block", 41),
    Sketcher.Constraint("Block", 42),
    Sketcher.Constraint("Coincident", 0, 2, 1, 1),
    Sketcher.Constraint("Coincident", 1, 2, 2, 1),
    Sketcher.Constraint("Coincident", 2, 2, 3, 2),
    Sketcher.Constraint("Coincident", 6, 1, 7, 1),
    Sketcher.Constraint("Coincident", 7, 2, 8, 2),
    Sketcher.Constraint("Coincident", 11, 1, 12, 1),
    Sketcher.Constraint("Coincident", 12, 2, 13, 1),
    Sketcher.Constraint("Coincident", 13, 2, 0, 1),
    Sketcher.Constraint("Coincident", 14, 2, 15, 1),
    Sketcher.Constraint("Coincident", 15, 2, 16, 1),
    Sketcher.Constraint("Coincident", 16, 2, 17, 1),
    Sketcher.Constraint("Coincident", 17, 2, 18, 1),
    Sketcher.Constraint("Coincident", 18, 2, 19, 1),
    Sketcher.Constraint("Coincident", 19, 2, 20, 1),
    Sketcher.Constraint("Coincident", 20, 2, 21, 1),
    Sketcher.Constraint("Coincident", 21, 2, 22, 1),
    Sketcher.Constraint("Coincident", 22, 2, 23, 1),
    Sketcher.Constraint("Coincident", 23, 2, 24, 1),
    Sketcher.Constraint("Coincident", 24, 2, 14, 1),
    Sketcher.Constraint("Coincident", 25, 2, 26, 1),
    Sketcher.Constraint("Coincident", 26, 2, 27, 2),
    Sketcher.Constraint("Coincident", 30, 1, 31, 1),
    Sketcher.Constraint("Coincident", 31, 2, 32, 2),
    Sketcher.Constraint("Coincident", 33, 1, 34, 1),
    Sketcher.Constraint("Coincident", 34, 2, 35, 2),
    Sketcher.Constraint("Coincident", 37, 1, 38, 1),
    Sketcher.Constraint("Coincident", 38, 2, 25, 1),
    Sketcher.Constraint("Horizontal", 0),
    Sketcher.Constraint("Vertical", 1),
    Sketcher.Constraint("Vertical", 13),
    Sketcher.Constraint("Vertical", 14),
    Sketcher.Constraint("Horizontal", 15),
    Sketcher.Constraint("Vertical", 16),
    Sketcher.Constraint("Horizontal", 17),
    Sketcher.Constraint("Vertical", 19),
    Sketcher.Constraint("Vertical", 22),
    Sketcher.Constraint("Horizontal", 24),
    Sketcher.Constraint("Vertical", 25),
    Sketcher.Constraint("Horizontal", 26),
    Sketcher.Constraint("Horizontal", 38),
    Sketcher.Constraint("Horizontal", 17, 2, 23, 2),
    Sketcher.Constraint("Vertical", 16, 2, 18, 2),
    Sketcher.Constraint("Vertical", 22, 2, 25, 2),
    Sketcher.Constraint("Equal", 7, 14),
    Sketcher.Constraint("DistanceX", 15, 2, 0, 2, 3.5),
    Sketcher.Constraint("DistanceX", 2, 2, 1, 2, 1.75),
    Sketcher.Constraint("DistanceY", 16, 2, 19, 2, 1.75),
    Sketcher.Constraint("DistanceX", 24, 1, 24, 2, 2.075321),
    Sketcher.Constraint("DistanceY", 19, 1, 19, 2, 0.450821),
    Sketcher.Constraint("DistanceY", 22, 2, 25, 2, 3.188702),
    Sketcher.Constraint("Distance", 2, 1.786439),
    Sketcher.Constraint("DistanceX", 0, 1, 0, 2, 0.358974),
    Sketcher.Constraint("DistanceX", 15, 2, 15, 1, 3.589744),
    Sketcher.Constraint("DistanceX", 17, 1, 17, 2, 1.178586),
    Sketcher.Constraint("DistanceX", 26, 2, 26, 1, 0.447316),
    Sketcher.Constraint("DistanceY", 1, 2, 1, 1, 1.435897),
    Sketcher.Constraint("DistanceY", 13, 1, 13, 2, 1.190505),
    Sketcher.Constraint("DistanceY", 22, 2, 22, 1, 0.451522),
    Sketcher.Constraint("DistanceY", 14, 2, -1, 1, 0.80104),
    Sketcher.Constraint("DistanceX", 17, 2, 20, 2, 0.167568),
    Sketcher.Constraint("DistanceY", 20, 2, 21, 2, 1.350361),
])
pocket2 = doc.addObject("PartDesign::Pocket", "Pocket001")
body.addObject(pocket2)
pocket2.Profile = sketch5
pocket2.Length = 0.01
pocket2.Reversed = True
body2 = doc.addObject("PartDesign::Body", "Body001")

# Sketch on XY plane
sketch6 = doc.addObject("Sketcher::SketchObject", "Sketch005")
body2.addObject(sketch6)
sketch6.AttachmentSupport = (doc.getObject("XY_Plane001"), [""])
sketch6.MapMode = "FlatFace"
sketch6.AttachmentOffset = App.Placement(V(0, 0, 6.35), App.Rotation())
sketch6.addGeometry([
    Part.LineSegment(V(-7.5, 7.8, 0), V(-9, 6.3, 0)),
    Part.LineSegment(V(-9, 6.3, 0), V(9, 6.3, 0)),
    Part.LineSegment(V(9, 6.3, 0), V(7.5, 7.8, 0)),
    Part.LineSegment(V(7.5, 7.8, 0), V(-7.5, 7.8, 0)),
], False)
sketch6.addConstraint([
    Sketcher.Constraint("Coincident", 0, 2, 1, 1),
    Sketcher.Constraint("Coincident", 1, 2, 2, 1),
    Sketcher.Constraint("Coincident", 2, 2, 3, 1),
    Sketcher.Constraint("Coincident", 3, 2, 0, 1),
    Sketcher.Constraint("Horizontal", 1),
    Sketcher.Constraint("Horizontal", 3),
    Sketcher.Constraint("Perpendicular", 0, 2),
    Sketcher.Constraint("Equal", 0, 2),
    Sketcher.Constraint("DistanceX", 1, 1, 1, 2, 18.0),
    Sketcher.Constraint("DistanceX", 3, 2, 3, 1, 15.0),
    Sketcher.Constraint("DistanceX", 0, 2, -1, 1, 9.0),
    Sketcher.Constraint("DistanceY", -1, 1, 0, 2, 6.35),
])
pad2 = doc.addObject("PartDesign::Pad", "Pad001")
body2.addObject(pad2)
pad2.Profile = sketch6
pad2.Length = 12.7
pad2.Reversed = True
doc.recompute()

fillet = doc.addObject("PartDesign::Fillet", "Fillet")
body2.addObject(fillet)
fillet.Base = (pad2, edges_at(pad2, [
    (7.5, 7.85, 0),
    (-7.5, 7.85, 0),
    (0, 7.85, -6.35),
    (0, 7.85, 6.35),
]))
fillet.Radius = 0.5
body3 = doc.addObject("PartDesign::Body", "Body002")
doc.recompute()

mirroring = doc.addObject("Part::Mirroring", "Mirroring")
mirroring.Source = body2
mirroring.Base = V(0, 0, 0)
mirroring.Normal = V(0, 1, 0)
body3.BaseFeature = mirroring
doc.recompute()
mirroring.Visibility = False

doc.recompute()
